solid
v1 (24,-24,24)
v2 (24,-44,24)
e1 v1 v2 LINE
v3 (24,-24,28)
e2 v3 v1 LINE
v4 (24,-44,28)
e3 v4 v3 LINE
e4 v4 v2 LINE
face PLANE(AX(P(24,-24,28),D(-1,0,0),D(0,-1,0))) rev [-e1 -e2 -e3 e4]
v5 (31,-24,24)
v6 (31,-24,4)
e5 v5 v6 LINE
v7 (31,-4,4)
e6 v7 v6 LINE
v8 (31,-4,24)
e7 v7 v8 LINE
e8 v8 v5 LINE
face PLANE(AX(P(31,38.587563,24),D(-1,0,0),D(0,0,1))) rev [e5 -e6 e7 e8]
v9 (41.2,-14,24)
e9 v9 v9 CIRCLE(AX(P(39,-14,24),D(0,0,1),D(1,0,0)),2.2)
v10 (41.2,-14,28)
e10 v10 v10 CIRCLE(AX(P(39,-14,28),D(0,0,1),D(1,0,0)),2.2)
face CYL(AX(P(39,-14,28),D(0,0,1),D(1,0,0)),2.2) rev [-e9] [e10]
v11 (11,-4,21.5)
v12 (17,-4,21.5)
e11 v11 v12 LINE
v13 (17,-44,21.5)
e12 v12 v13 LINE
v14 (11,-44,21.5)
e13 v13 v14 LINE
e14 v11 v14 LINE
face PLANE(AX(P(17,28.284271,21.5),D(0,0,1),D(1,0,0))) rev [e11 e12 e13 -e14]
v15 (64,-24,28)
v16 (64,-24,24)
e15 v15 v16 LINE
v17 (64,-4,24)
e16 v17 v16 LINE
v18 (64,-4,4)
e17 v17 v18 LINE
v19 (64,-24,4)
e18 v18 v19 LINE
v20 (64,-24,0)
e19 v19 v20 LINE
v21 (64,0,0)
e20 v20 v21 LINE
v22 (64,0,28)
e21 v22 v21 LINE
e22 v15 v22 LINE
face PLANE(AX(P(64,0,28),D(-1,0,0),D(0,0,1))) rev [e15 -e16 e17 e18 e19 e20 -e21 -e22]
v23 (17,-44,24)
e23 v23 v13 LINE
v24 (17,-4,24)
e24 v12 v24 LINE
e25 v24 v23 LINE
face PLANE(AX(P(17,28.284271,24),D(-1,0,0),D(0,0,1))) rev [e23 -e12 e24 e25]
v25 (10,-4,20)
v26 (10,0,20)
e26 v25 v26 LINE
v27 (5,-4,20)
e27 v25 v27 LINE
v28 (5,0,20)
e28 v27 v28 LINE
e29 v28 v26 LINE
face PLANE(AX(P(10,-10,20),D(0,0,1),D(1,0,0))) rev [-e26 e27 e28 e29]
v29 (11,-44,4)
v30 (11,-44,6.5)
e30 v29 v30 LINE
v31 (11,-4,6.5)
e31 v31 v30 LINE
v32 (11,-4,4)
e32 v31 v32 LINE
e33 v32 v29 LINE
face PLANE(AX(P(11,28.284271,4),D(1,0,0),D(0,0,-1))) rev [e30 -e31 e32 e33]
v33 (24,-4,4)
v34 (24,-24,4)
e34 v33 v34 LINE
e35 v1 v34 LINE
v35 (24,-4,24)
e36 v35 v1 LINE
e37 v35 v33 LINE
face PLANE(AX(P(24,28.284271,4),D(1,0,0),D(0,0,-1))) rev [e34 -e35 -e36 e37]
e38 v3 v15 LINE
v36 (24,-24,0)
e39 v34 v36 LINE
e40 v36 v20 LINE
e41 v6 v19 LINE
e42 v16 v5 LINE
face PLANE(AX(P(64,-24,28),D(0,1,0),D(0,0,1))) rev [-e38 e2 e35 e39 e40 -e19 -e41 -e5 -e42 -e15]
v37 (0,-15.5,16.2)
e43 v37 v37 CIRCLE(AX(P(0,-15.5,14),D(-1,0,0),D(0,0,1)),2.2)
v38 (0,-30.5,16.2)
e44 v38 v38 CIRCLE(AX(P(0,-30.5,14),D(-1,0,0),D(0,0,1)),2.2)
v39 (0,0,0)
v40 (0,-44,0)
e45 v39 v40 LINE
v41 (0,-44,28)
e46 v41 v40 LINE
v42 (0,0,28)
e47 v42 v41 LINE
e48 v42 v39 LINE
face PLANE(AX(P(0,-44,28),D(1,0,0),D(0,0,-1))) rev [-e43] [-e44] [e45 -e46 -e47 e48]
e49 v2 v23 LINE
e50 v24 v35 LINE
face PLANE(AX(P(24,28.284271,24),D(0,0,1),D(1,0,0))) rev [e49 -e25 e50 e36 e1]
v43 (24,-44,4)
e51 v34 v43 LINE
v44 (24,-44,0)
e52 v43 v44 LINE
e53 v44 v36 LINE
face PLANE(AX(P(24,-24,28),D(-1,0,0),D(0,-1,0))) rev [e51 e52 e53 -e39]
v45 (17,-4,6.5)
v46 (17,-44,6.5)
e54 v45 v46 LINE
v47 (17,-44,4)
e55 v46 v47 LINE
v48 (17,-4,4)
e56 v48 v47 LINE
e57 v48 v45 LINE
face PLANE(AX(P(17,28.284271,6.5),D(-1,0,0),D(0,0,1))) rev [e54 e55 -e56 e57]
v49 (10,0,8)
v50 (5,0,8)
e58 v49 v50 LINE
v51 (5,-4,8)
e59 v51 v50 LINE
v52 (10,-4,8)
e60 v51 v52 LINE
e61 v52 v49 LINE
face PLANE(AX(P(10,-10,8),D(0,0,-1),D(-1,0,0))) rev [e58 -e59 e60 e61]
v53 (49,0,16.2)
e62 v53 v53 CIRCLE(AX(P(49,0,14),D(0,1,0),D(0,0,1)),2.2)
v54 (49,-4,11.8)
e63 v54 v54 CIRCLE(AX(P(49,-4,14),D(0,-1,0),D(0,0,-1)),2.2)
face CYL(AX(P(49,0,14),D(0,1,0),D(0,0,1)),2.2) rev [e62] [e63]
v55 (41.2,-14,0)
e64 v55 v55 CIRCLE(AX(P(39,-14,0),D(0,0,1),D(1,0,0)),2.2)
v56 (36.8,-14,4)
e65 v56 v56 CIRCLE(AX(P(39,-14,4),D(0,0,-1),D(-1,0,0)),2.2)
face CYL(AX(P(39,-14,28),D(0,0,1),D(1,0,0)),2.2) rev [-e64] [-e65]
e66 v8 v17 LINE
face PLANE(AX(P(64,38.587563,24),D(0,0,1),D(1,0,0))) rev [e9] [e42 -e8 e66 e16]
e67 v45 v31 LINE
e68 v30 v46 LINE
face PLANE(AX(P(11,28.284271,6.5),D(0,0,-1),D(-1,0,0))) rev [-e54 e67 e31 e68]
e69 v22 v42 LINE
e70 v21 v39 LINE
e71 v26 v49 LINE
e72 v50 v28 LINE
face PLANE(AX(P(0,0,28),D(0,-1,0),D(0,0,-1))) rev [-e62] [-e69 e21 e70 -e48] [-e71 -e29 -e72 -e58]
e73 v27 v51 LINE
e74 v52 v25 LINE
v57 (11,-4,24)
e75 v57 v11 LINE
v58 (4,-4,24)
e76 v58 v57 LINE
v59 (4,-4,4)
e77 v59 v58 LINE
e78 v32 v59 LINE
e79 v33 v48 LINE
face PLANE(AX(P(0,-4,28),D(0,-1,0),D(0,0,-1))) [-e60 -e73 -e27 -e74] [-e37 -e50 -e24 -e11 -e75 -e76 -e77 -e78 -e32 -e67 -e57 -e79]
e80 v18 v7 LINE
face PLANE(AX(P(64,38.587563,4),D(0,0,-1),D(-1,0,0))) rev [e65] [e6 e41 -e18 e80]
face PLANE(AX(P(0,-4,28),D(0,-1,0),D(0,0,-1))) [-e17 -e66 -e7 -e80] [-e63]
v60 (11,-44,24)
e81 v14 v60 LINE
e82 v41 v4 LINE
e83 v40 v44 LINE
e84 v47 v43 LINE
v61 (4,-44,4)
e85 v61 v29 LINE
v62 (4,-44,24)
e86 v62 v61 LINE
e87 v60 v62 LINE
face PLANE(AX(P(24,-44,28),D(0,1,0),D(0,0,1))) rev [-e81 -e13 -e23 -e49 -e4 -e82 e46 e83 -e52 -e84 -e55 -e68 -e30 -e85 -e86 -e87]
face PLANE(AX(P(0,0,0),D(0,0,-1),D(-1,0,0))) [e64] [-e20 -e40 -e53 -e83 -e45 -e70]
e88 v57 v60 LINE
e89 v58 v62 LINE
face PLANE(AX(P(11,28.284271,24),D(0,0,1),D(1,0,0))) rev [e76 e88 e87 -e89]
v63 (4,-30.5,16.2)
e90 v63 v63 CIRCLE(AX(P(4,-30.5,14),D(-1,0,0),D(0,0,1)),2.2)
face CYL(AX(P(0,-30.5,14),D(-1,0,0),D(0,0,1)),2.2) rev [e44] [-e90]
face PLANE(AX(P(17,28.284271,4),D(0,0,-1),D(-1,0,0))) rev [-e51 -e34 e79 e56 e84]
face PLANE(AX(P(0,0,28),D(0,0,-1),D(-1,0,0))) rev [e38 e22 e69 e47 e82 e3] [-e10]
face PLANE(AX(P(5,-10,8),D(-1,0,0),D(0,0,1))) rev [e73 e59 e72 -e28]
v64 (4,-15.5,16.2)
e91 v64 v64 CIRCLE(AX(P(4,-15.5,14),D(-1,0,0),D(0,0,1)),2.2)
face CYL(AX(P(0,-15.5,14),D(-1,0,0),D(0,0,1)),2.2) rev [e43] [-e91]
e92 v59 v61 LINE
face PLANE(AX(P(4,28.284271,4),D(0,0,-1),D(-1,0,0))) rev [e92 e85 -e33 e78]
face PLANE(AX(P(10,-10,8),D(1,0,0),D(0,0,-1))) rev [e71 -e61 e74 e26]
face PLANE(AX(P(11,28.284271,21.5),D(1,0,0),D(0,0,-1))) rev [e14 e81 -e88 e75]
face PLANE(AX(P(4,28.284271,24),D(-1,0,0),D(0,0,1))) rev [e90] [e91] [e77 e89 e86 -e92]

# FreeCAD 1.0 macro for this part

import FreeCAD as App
import Part
import Sketcher

V = App.Vector

doc = App.newDocument("Part")
params = doc.addObject("Spreadsheet::Sheet", "Params")
for row, (alias, value) in enumerate([
    ("sketch1_width", "64 mm"),
    ("sketch1_width2", "24 mm"),
    ("sketch1_height", "44 mm"),
    ("pad1_length", "28 mm"),
    ("sketch2_width", "7 mm"),
    ("sketch2_width2", "6 mm"),
    ("sketch2_height", "20 mm"),
    ("sketch2_height2", "2.5 mm"),
    ("pocket1_length", "40 mm"),
    ("sketch3_width", "33 mm"),
    ("sketch3_height", "20 mm"),
    ("pocket2_length", "20 mm"),
    ("sketch4_diameter", "4.4 mm"),
    ("hole_diameter", "4.4 mm"),
    ("hole_depth", "5 mm"),
    ("sketch5_diameter", "4.4 mm"),
    ("hole2_diameter", "4.4 mm"),
    ("sketch6_diameter", "4.4 mm"),
    ("hole3_diameter", "4.4 mm"),
    ("hole3_depth", "5 mm"),
    ("sketch7_width", "5 mm"),
    ("sketch7_height", "12 mm"),
    ("pocket3_length", "10 mm"),
], start=1):
    params.set(f"A{row}", alias)
    params.set(f"B{row}", "=" + value)
    params.setAlias(f"B{row}", alias)

body = doc.addObject("PartDesign::Body", "Body")

# Sketch on XY plane
sketch1 = body.newObject("Sketcher::SketchObject", "Sketch")
sketch1.AttachmentSupport = (doc.getObject("XY_Plane"), [""])
sketch1.MapMode = "FlatFace"
sketch1.addGeometry(Part.LineSegment(V(64, 0, 0), V(0, 0, 0)), False)
sketch1.addGeometry(Part.LineSegment(V(0, 0, 0), V(0, -44, 0)), False)
sketch1.addGeometry(Part.LineSegment(V(0, -44, 0), V(24, -44, 0)), False)
sketch1.addGeometry(Part.LineSegment(V(24, -44, 0), V(24, -24, 0)), False)
sketch1.addGeometry(Part.LineSegment(V(24, -24, 0), V(64, -24, 0)), False)
sketch1.addGeometry(Part.LineSegment(V(64, -24, 0), V(64, 0, 0)), False)
sketch1.addConstraint(Sketcher.Constraint("Coincident", 0, 2, 1, 1))
sketch1.addConstraint(Sketcher.Constraint("Coincident", 1, 2, 2, 1))
sketch1.addConstraint(Sketcher.Constraint("Coincident", 2, 2, 3, 1))
sketch1.addConstraint(Sketcher.Constraint("Coincident", 3, 2, 4, 1))
sketch1.addConstraint(Sketcher.Constraint("Coincident", 4, 2, 5, 1))
sketch1.addConstraint(Sketcher.Constraint("Coincident", 5, 2, 0, 1))
sketch1.addConstraint(Sketcher.Constraint("Horizontal", 0))
sketch1.addConstraint(Sketcher.Constraint("Vertical", 1))
sketch1.addConstraint(Sketcher.Constraint("Horizontal", 2))
sketch1.addConstraint(Sketcher.Constraint("Vertical", 3))
sketch1.addConstraint(Sketcher.Constraint("Horizontal", 4))
sketch1.addConstraint(Sketcher.Constraint("Vertical", 5))
sketch1.addConstraint(Sketcher.Constraint("Coincident", 0, 2, -1, 1))
sketch1.addConstraint(Sketcher.Constraint("Equal", 2, 5))
sketch1.addConstraint(Sketcher.Constraint("DistanceX", 0, 2, 0, 1, 64.0))
sketch1.addConstraint(Sketcher.Constraint("DistanceX", 2, 1, 2, 2, 24.0))
sketch1.addConstraint(Sketcher.Constraint("DistanceY", 1, 2, 1, 1, 44.0))
sketch1.setExpression("Constraints[14]", "Params.sketch1_width")
sketch1.setExpression("Constraints[15]", "Params.sketch1_width2")
sketch1.setExpression("Constraints[16]", "Params.sketch1_height")
pad1 = body.newObject("PartDesign::Pad", "Pad")
pad1.Profile = sketch1
pad1.setExpression("Length", "Params.pad1_length")

# Sketch on XZ plane
sketch2 = body.newObject("Sketcher::SketchObject", "Sketch001")
sketch2.AttachmentSupport = (doc.getObject("XZ_Plane"), [""])
sketch2.MapMode = "FlatFace"
sketch2.AttachmentOffset = App.Placement(V(0, 0, 44), App.Rotation())
sketch2.addGeometry(Part.LineSegment(V(24, 24, 0), V(17, 24, 0)), False)
sketch2.addGeometry(Part.LineSegment(V(17, 24, 0), V(17, 21.5, 0)), False)
sketch2.addGeometry(Part.LineSegment(V(17, 21.5, 0), V(11, 21.5, 0)), False)
sketch2.addGeometry(Part.LineSegment(V(11, 21.5, 0), V(11, 24, 0)), False)
sketch2.addGeometry(Part.LineSegment(V(11, 24, 0), V(4, 24, 0)), False)
sketch2.addGeometry(Part.LineSegment(V(4, 24, 0), V(4, 4, 0)), False)
sketch2.addGeometry(Part.LineSegment(V(4, 4, 0), V(11, 4, 0)), False)
sketch2.addGeometry(Part.LineSegment(V(11, 4, 0), V(11, 6.5, 0)), False)
sketch2.addGeometry(Part.LineSegment(V(11, 6.5, 0), V(17, 6.5, 0)), False)
sketch2.addGeometry(Part.LineSegment(V(17, 6.5, 0), V(17, 4, 0)), False)
sketch2.addGeometry(Part.LineSegment(V(17, 4, 0), V(24, 4, 0)), False)
sketch2.addGeometry(Part.LineSegment(V(24, 4, 0), V(24, 24, 0)), False)
sketch2.addConstraint(Sketcher.Constraint("Coincident", 0, 2, 1, 1))
sketch2.addConstraint(Sketcher.Constraint("Coincident", 1, 2, 2, 1))
sketch2.addConstraint(Sketcher.Constraint("Coincident", 2, 2, 3, 1))
sketch2.addConstraint(Sketcher.Constraint("Coincident", 3, 2, 4, 1))
sketch2.addConstraint(Sketcher.Constraint("Coincident", 4, 2, 5, 1))
sketch2.addConstraint(Sketcher.Constraint("Coincident", 5, 2, 6, 1))
sketch2.addConstraint(Sketcher.Constraint("Coincident", 6, 2, 7, 1))
sketch2.addConstraint(Sketcher.Constraint("Coincident", 7, 2, 8, 1))
sketch2.addConstraint(Sketcher.Constraint("Coincident", 8, 2, 9, 1))
sketch2.addConstraint(Sketcher.Constraint("Coincident", 9, 2, 10, 1))
sketch2.addConstraint(Sketcher.Constraint("Coincident", 10, 2, 11, 1))
sketch2.addConstraint(Sketcher.Constraint("Coincident", 11, 2, 0, 1))
sketch2.addConstraint(Sketcher.Constraint("Horizontal", 0))
sketch2.addConstraint(Sketcher.Constraint("Vertical", 1))
sketch2.addConstraint(Sketcher.Constraint("Horizontal", 2))
sketch2.addConstraint(Sketcher.Constraint("Vertical", 3))
sketch2.addConstraint(Sketcher.Constraint("Horizontal", 4))
sketch2.addConstraint(Sketcher.Constraint("Vertical", 5))
sketch2.addConstraint(Sketcher.Constraint("Horizontal", 6))
sketch2.addConstraint(Sketcher.Constraint("Vertical", 7))
sketch2.addConstraint(Sketcher.Constraint("Horizontal", 8))
sketch2.addConstraint(Sketcher.Constraint("Vertical", 9))
sketch2.addConstraint(Sketcher.Constraint("Horizontal", 10))
sketch2.addConstraint(Sketcher.Constraint("Vertical", 11))
sketch2.addConstraint(Sketcher.Constraint("Horizontal", 0, 2, 3, 2))
sketch2.addConstraint(Sketcher.Constraint("Horizontal", 6, 2, 9, 2))
sketch2.addConstraint(Sketcher.Constraint("Vertical", 3, 2, 6, 2))
sketch2.addConstraint(Sketcher.Constraint("Vertical", 1, 2, 8, 2))
sketch2.addConstraint(Sketcher.Constraint("Equal", 0, 4))
sketch2.addConstraint(Sketcher.Constraint("Equal", 3, 7))
sketch2.addConstraint(Sketcher.Constraint("DistanceX", 0, 2, 0, 1, 7.0))
sketch2.addConstraint(Sketcher.Constraint("DistanceX", 2, 2, 2, 1, 6.0))
sketch2.addConstraint(Sketcher.Constraint("DistanceY", 5, 2, 5, 1, 20.0))
sketch2.addConstraint(Sketcher.Constraint("DistanceY", 1, 2, 1, 1, 2.5))
sketch2.addConstraint(Sketcher.Constraint("DistanceX", -1, 1, 0, 2, 17.0))
sketch2.addConstraint(Sketcher.Constraint("DistanceY", -1, 1, 0, 2, 24.0))
sketch2.setExpression("Constraints[30]", "Params.sketch2_width")
sketch2.setExpression("Constraints[31]", "Params.sketch2_width2")
sketch2.setExpression("Constraints[32]", "Params.sketch2_height")
sketch2.setExpression("Constraints[33]", "Params.sketch2_height2")
pocket1 = body.newObject("PartDesign::Pocket", "Pocket")
pocket1.Profile = sketch2
pocket1.setExpression("Length", "Params.pocket1_length")

# Sketch on XZ plane
sketch3 = body.newObject("Sketcher::SketchObject", "Sketch002")
sketch3.AttachmentSupport = (doc.getObject("XZ_Plane"), [""])
sketch3.MapMode = "FlatFace"
sketch3.AttachmentOffset = App.Placement(V(0, 0, 24), App.Rotation())
sketch3.addGeometry(Part.LineSegment(V(31, 24, 0), V(31, 4, 0)), False)
sketch3.addGeometry(Part.LineSegment(V(31, 4, 0), V(64, 4, 0)), False)
sketch3.addGeometry(Part.LineSegment(V(64, 4, 0), V(64, 24, 0)), False)
sketch3.addGeometry(Part.LineSegment(V(64, 24, 0), V(31, 24, 0)), False)
sketch3.addConstraint(Sketcher.Constraint("Coincident", 0, 2, 1, 1))
sketch3.addConstraint(Sketcher.Constraint("Coincident", 1, 2, 2, 1))
sketch3.addConstraint(Sketcher.Constraint("Coincident", 2, 2, 3, 1))
sketch3.addConstraint(Sketcher.Constraint("Coincident", 3, 2, 0, 1))
sketch3.addConstraint(Sketcher.Constraint("Vertical", 0))
sketch3.addConstraint(Sketcher.Constraint("Horizontal", 1))
sketch3.addConstraint(Sketcher.Constraint("Vertical", 2))
sketch3.addConstraint(Sketcher.Constraint("Horizontal", 3))
sketch3.addConstraint(Sketcher.Constraint("DistanceX", 1, 1, 1, 2, 33.0))
sketch3.addConstraint(Sketcher.Constraint("DistanceY", 0, 2, 0, 1, 20.0))
sketch3.addConstraint(Sketcher.Constraint("DistanceX", -1, 1, 0, 2, 31.0))
sketch3.addConstraint(Sketcher.Constraint("DistanceY", -1, 1, 0, 2, 4.0))
sketch3.setExpression("Constraints[8]", "Params.sketch3_width")
sketch3.setExpression("Constraints[9]", "Params.sketch3_height")
pocket2 = body.newObject("PartDesign::Pocket", "Pocket001")
pocket2.Profile = sketch3
pocket2.setExpression("Length", "Params.pocket2_length")

# Sketch on YZ plane
sketch4 = body.newObject("Sketcher::SketchObject", "Sketch003")
sketch4.AttachmentSupport = (doc.getObject("YZ_Plane"), [""])
sketch4.MapMode = "FlatFace"
sketch4.addGeometry(Part.Circle(V(-15.5, 14, 0), V(0, 0, 1), 2.2), False)
sketch4.addGeometry(Part.Circle(V(-30.5, 14, 0), V(0, 0, 1), 2.2), False)
sketch4.addConstraint(Sketcher.Constraint("Equal", 0, 1))
sketch4.addConstraint(Sketcher.Constraint("Horizontal", 0, 3, 1, 3))
sketch4.addConstraint(Sketcher.Constraint("Diameter", 0, 4.4))
sketch4.addConstraint(Sketcher.Constraint("DistanceY", -1, 1, 0, 3, 14.0))
sketch4.addConstraint(Sketcher.Constraint("DistanceX", 1, 3, 0, 3, 15.0))
sketch4.addConstraint(Sketcher.Constraint("DistanceX", 0, 3, -1, 1, 15.5))
sketch4.setExpression("Constraints[2]", "Params.sketch4_diameter")
doc.recompute()
hole = body.newObject("PartDesign::Hole", "Hole")
hole.Profile = sketch4
hole.ThreadType = "None"
hole.setExpression("Diameter", "Params.hole_diameter")
hole.DepthType = "Dimension"
hole.setExpression("Depth", "Params.hole_depth")
hole.DrillPoint = "Flat"
hole.Reversed = True

# Sketch on XY plane
sketch5 = body.newObject("Sketcher::SketchObject", "Sketch004")
sketch5.AttachmentSupport = (doc.getObject("XY_Plane"), [""])
sketch5.MapMode = "FlatFace"
sketch5.AttachmentOffset = App.Placement(V(0, 0, 28), App.Rotation())
sketch5.addGeometry(Part.Circle(V(39, -14, 0), V(0, 0, 1), 2.2), False)
sketch5.addConstraint(Sketcher.Constraint("Diameter", 0, 4.4))
sketch5.addConstraint(Sketcher.Constraint("DistanceX", -1, 1, 0, 3, 39.0))
sketch5.addConstraint(Sketcher.Constraint("DistanceY", 0, 3, -1, 1, 14.0))
sketch5.setExpression("Constraints[0]", "Params.sketch5_diameter")
doc.recompute()
hole2 = body.newObject("PartDesign::Hole", "Hole001")
hole2.Profile = sketch5
hole2.ThreadType = "None"
hole2.setExpression("Diameter", "Params.hole2_diameter")
hole2.DepthType = "ThroughAll"

# Sketch on XZ plane
sketch6 = body.newObject("Sketcher::SketchObject", "Sketch005")
sketch6.AttachmentSupport = (doc.getObject("XZ_Plane"), [""])
sketch6.MapMode = "FlatFace"
sketch6.addGeometry(Part.Circle(V(49, 14, 0), V(0, 0, 1), 2.2), False)
sketch6.addConstraint(Sketcher.Constraint("Diameter", 0, 4.4))
sketch6.addConstraint(Sketcher.Constraint("DistanceX", -1, 1, 0, 3, 49.0))
sketch6.addConstraint(Sketcher.Constraint("DistanceY", -1, 1, 0, 3, 14.0))
sketch6.setExpression("Constraints[0]", "Params.sketch6_diameter")
doc.recompute()
hole3 = body.newObject("PartDesign::Hole", "Hole002")
hole3.Profile = sketch6
hole3.ThreadType = "None"
hole3.setExpression("Diameter", "Params.hole3_diameter")
hole3.DepthType = "Dimension"
hole3.setExpression("Depth", "Params.hole3_depth")
hole3.DrillPoint = "Flat"
hole3.Reversed = True

# Sketch on XZ plane
sketch7 = body.newObject("Sketcher::SketchObject", "Sketch006")
sketch7.AttachmentSupport = (doc.getObject("XZ_Plane"), [""])
sketch7.MapMode = "FlatFace"
sketch7.addGeometry(Part.LineSegment(V(5, 8, 0), V(5, 20, 0)), False)
sketch7.addGeometry(Part.LineSegment(V(5, 20, 0), V(10, 20, 0)), False)
sketch7.addGeometry(Part.LineSegment(V(10, 20, 0), V(10, 8, 0)), False)
sketch7.addGeometry(Part.LineSegment(V(10, 8, 0), V(5, 8, 0)), False)
sketch7.addConstraint(Sketcher.Constraint("Coincident", 0, 2, 1, 1))
sketch7.addConstraint(Sketcher.Constraint("Coincident", 1, 2, 2, 1))
sketch7.addConstraint(Sketcher.Constraint("Coincident", 2, 2, 3, 1))
sketch7.addConstraint(Sketcher.Constraint("Coincident", 3, 2, 0, 1))
sketch7.addConstraint(Sketcher.Constraint("Vertical", 0))
sketch7.addConstraint(Sketcher.Constraint("Horizontal", 1))
sketch7.addConstraint(Sketcher.Constraint("Vertical", 2))
sketch7.addConstraint(Sketcher.Constraint("Horizontal", 3))
sketch7.addConstraint(Sketcher.Constraint("DistanceX", 1, 1, 1, 2, 5.0))
sketch7.addConstraint(Sketcher.Constraint("DistanceY", 0, 1, 0, 2, 12.0))
sketch7.addConstraint(Sketcher.Constraint("DistanceX", -1, 1, 0, 2, 5.0))
sketch7.addConstraint(Sketcher.Constraint("DistanceY", -1, 1, 0, 2, 20.0))
sketch7.setExpression("Constraints[8]", "Params.sketch7_width")
sketch7.setExpression("Constraints[9]", "Params.sketch7_height")
pocket3 = body.newObject("PartDesign::Pocket", "Pocket002")
pocket3.Profile = sketch7
pocket3.setExpression("Length", "Params.pocket3_length")
pocket3.Reversed = True

doc.recompute()
